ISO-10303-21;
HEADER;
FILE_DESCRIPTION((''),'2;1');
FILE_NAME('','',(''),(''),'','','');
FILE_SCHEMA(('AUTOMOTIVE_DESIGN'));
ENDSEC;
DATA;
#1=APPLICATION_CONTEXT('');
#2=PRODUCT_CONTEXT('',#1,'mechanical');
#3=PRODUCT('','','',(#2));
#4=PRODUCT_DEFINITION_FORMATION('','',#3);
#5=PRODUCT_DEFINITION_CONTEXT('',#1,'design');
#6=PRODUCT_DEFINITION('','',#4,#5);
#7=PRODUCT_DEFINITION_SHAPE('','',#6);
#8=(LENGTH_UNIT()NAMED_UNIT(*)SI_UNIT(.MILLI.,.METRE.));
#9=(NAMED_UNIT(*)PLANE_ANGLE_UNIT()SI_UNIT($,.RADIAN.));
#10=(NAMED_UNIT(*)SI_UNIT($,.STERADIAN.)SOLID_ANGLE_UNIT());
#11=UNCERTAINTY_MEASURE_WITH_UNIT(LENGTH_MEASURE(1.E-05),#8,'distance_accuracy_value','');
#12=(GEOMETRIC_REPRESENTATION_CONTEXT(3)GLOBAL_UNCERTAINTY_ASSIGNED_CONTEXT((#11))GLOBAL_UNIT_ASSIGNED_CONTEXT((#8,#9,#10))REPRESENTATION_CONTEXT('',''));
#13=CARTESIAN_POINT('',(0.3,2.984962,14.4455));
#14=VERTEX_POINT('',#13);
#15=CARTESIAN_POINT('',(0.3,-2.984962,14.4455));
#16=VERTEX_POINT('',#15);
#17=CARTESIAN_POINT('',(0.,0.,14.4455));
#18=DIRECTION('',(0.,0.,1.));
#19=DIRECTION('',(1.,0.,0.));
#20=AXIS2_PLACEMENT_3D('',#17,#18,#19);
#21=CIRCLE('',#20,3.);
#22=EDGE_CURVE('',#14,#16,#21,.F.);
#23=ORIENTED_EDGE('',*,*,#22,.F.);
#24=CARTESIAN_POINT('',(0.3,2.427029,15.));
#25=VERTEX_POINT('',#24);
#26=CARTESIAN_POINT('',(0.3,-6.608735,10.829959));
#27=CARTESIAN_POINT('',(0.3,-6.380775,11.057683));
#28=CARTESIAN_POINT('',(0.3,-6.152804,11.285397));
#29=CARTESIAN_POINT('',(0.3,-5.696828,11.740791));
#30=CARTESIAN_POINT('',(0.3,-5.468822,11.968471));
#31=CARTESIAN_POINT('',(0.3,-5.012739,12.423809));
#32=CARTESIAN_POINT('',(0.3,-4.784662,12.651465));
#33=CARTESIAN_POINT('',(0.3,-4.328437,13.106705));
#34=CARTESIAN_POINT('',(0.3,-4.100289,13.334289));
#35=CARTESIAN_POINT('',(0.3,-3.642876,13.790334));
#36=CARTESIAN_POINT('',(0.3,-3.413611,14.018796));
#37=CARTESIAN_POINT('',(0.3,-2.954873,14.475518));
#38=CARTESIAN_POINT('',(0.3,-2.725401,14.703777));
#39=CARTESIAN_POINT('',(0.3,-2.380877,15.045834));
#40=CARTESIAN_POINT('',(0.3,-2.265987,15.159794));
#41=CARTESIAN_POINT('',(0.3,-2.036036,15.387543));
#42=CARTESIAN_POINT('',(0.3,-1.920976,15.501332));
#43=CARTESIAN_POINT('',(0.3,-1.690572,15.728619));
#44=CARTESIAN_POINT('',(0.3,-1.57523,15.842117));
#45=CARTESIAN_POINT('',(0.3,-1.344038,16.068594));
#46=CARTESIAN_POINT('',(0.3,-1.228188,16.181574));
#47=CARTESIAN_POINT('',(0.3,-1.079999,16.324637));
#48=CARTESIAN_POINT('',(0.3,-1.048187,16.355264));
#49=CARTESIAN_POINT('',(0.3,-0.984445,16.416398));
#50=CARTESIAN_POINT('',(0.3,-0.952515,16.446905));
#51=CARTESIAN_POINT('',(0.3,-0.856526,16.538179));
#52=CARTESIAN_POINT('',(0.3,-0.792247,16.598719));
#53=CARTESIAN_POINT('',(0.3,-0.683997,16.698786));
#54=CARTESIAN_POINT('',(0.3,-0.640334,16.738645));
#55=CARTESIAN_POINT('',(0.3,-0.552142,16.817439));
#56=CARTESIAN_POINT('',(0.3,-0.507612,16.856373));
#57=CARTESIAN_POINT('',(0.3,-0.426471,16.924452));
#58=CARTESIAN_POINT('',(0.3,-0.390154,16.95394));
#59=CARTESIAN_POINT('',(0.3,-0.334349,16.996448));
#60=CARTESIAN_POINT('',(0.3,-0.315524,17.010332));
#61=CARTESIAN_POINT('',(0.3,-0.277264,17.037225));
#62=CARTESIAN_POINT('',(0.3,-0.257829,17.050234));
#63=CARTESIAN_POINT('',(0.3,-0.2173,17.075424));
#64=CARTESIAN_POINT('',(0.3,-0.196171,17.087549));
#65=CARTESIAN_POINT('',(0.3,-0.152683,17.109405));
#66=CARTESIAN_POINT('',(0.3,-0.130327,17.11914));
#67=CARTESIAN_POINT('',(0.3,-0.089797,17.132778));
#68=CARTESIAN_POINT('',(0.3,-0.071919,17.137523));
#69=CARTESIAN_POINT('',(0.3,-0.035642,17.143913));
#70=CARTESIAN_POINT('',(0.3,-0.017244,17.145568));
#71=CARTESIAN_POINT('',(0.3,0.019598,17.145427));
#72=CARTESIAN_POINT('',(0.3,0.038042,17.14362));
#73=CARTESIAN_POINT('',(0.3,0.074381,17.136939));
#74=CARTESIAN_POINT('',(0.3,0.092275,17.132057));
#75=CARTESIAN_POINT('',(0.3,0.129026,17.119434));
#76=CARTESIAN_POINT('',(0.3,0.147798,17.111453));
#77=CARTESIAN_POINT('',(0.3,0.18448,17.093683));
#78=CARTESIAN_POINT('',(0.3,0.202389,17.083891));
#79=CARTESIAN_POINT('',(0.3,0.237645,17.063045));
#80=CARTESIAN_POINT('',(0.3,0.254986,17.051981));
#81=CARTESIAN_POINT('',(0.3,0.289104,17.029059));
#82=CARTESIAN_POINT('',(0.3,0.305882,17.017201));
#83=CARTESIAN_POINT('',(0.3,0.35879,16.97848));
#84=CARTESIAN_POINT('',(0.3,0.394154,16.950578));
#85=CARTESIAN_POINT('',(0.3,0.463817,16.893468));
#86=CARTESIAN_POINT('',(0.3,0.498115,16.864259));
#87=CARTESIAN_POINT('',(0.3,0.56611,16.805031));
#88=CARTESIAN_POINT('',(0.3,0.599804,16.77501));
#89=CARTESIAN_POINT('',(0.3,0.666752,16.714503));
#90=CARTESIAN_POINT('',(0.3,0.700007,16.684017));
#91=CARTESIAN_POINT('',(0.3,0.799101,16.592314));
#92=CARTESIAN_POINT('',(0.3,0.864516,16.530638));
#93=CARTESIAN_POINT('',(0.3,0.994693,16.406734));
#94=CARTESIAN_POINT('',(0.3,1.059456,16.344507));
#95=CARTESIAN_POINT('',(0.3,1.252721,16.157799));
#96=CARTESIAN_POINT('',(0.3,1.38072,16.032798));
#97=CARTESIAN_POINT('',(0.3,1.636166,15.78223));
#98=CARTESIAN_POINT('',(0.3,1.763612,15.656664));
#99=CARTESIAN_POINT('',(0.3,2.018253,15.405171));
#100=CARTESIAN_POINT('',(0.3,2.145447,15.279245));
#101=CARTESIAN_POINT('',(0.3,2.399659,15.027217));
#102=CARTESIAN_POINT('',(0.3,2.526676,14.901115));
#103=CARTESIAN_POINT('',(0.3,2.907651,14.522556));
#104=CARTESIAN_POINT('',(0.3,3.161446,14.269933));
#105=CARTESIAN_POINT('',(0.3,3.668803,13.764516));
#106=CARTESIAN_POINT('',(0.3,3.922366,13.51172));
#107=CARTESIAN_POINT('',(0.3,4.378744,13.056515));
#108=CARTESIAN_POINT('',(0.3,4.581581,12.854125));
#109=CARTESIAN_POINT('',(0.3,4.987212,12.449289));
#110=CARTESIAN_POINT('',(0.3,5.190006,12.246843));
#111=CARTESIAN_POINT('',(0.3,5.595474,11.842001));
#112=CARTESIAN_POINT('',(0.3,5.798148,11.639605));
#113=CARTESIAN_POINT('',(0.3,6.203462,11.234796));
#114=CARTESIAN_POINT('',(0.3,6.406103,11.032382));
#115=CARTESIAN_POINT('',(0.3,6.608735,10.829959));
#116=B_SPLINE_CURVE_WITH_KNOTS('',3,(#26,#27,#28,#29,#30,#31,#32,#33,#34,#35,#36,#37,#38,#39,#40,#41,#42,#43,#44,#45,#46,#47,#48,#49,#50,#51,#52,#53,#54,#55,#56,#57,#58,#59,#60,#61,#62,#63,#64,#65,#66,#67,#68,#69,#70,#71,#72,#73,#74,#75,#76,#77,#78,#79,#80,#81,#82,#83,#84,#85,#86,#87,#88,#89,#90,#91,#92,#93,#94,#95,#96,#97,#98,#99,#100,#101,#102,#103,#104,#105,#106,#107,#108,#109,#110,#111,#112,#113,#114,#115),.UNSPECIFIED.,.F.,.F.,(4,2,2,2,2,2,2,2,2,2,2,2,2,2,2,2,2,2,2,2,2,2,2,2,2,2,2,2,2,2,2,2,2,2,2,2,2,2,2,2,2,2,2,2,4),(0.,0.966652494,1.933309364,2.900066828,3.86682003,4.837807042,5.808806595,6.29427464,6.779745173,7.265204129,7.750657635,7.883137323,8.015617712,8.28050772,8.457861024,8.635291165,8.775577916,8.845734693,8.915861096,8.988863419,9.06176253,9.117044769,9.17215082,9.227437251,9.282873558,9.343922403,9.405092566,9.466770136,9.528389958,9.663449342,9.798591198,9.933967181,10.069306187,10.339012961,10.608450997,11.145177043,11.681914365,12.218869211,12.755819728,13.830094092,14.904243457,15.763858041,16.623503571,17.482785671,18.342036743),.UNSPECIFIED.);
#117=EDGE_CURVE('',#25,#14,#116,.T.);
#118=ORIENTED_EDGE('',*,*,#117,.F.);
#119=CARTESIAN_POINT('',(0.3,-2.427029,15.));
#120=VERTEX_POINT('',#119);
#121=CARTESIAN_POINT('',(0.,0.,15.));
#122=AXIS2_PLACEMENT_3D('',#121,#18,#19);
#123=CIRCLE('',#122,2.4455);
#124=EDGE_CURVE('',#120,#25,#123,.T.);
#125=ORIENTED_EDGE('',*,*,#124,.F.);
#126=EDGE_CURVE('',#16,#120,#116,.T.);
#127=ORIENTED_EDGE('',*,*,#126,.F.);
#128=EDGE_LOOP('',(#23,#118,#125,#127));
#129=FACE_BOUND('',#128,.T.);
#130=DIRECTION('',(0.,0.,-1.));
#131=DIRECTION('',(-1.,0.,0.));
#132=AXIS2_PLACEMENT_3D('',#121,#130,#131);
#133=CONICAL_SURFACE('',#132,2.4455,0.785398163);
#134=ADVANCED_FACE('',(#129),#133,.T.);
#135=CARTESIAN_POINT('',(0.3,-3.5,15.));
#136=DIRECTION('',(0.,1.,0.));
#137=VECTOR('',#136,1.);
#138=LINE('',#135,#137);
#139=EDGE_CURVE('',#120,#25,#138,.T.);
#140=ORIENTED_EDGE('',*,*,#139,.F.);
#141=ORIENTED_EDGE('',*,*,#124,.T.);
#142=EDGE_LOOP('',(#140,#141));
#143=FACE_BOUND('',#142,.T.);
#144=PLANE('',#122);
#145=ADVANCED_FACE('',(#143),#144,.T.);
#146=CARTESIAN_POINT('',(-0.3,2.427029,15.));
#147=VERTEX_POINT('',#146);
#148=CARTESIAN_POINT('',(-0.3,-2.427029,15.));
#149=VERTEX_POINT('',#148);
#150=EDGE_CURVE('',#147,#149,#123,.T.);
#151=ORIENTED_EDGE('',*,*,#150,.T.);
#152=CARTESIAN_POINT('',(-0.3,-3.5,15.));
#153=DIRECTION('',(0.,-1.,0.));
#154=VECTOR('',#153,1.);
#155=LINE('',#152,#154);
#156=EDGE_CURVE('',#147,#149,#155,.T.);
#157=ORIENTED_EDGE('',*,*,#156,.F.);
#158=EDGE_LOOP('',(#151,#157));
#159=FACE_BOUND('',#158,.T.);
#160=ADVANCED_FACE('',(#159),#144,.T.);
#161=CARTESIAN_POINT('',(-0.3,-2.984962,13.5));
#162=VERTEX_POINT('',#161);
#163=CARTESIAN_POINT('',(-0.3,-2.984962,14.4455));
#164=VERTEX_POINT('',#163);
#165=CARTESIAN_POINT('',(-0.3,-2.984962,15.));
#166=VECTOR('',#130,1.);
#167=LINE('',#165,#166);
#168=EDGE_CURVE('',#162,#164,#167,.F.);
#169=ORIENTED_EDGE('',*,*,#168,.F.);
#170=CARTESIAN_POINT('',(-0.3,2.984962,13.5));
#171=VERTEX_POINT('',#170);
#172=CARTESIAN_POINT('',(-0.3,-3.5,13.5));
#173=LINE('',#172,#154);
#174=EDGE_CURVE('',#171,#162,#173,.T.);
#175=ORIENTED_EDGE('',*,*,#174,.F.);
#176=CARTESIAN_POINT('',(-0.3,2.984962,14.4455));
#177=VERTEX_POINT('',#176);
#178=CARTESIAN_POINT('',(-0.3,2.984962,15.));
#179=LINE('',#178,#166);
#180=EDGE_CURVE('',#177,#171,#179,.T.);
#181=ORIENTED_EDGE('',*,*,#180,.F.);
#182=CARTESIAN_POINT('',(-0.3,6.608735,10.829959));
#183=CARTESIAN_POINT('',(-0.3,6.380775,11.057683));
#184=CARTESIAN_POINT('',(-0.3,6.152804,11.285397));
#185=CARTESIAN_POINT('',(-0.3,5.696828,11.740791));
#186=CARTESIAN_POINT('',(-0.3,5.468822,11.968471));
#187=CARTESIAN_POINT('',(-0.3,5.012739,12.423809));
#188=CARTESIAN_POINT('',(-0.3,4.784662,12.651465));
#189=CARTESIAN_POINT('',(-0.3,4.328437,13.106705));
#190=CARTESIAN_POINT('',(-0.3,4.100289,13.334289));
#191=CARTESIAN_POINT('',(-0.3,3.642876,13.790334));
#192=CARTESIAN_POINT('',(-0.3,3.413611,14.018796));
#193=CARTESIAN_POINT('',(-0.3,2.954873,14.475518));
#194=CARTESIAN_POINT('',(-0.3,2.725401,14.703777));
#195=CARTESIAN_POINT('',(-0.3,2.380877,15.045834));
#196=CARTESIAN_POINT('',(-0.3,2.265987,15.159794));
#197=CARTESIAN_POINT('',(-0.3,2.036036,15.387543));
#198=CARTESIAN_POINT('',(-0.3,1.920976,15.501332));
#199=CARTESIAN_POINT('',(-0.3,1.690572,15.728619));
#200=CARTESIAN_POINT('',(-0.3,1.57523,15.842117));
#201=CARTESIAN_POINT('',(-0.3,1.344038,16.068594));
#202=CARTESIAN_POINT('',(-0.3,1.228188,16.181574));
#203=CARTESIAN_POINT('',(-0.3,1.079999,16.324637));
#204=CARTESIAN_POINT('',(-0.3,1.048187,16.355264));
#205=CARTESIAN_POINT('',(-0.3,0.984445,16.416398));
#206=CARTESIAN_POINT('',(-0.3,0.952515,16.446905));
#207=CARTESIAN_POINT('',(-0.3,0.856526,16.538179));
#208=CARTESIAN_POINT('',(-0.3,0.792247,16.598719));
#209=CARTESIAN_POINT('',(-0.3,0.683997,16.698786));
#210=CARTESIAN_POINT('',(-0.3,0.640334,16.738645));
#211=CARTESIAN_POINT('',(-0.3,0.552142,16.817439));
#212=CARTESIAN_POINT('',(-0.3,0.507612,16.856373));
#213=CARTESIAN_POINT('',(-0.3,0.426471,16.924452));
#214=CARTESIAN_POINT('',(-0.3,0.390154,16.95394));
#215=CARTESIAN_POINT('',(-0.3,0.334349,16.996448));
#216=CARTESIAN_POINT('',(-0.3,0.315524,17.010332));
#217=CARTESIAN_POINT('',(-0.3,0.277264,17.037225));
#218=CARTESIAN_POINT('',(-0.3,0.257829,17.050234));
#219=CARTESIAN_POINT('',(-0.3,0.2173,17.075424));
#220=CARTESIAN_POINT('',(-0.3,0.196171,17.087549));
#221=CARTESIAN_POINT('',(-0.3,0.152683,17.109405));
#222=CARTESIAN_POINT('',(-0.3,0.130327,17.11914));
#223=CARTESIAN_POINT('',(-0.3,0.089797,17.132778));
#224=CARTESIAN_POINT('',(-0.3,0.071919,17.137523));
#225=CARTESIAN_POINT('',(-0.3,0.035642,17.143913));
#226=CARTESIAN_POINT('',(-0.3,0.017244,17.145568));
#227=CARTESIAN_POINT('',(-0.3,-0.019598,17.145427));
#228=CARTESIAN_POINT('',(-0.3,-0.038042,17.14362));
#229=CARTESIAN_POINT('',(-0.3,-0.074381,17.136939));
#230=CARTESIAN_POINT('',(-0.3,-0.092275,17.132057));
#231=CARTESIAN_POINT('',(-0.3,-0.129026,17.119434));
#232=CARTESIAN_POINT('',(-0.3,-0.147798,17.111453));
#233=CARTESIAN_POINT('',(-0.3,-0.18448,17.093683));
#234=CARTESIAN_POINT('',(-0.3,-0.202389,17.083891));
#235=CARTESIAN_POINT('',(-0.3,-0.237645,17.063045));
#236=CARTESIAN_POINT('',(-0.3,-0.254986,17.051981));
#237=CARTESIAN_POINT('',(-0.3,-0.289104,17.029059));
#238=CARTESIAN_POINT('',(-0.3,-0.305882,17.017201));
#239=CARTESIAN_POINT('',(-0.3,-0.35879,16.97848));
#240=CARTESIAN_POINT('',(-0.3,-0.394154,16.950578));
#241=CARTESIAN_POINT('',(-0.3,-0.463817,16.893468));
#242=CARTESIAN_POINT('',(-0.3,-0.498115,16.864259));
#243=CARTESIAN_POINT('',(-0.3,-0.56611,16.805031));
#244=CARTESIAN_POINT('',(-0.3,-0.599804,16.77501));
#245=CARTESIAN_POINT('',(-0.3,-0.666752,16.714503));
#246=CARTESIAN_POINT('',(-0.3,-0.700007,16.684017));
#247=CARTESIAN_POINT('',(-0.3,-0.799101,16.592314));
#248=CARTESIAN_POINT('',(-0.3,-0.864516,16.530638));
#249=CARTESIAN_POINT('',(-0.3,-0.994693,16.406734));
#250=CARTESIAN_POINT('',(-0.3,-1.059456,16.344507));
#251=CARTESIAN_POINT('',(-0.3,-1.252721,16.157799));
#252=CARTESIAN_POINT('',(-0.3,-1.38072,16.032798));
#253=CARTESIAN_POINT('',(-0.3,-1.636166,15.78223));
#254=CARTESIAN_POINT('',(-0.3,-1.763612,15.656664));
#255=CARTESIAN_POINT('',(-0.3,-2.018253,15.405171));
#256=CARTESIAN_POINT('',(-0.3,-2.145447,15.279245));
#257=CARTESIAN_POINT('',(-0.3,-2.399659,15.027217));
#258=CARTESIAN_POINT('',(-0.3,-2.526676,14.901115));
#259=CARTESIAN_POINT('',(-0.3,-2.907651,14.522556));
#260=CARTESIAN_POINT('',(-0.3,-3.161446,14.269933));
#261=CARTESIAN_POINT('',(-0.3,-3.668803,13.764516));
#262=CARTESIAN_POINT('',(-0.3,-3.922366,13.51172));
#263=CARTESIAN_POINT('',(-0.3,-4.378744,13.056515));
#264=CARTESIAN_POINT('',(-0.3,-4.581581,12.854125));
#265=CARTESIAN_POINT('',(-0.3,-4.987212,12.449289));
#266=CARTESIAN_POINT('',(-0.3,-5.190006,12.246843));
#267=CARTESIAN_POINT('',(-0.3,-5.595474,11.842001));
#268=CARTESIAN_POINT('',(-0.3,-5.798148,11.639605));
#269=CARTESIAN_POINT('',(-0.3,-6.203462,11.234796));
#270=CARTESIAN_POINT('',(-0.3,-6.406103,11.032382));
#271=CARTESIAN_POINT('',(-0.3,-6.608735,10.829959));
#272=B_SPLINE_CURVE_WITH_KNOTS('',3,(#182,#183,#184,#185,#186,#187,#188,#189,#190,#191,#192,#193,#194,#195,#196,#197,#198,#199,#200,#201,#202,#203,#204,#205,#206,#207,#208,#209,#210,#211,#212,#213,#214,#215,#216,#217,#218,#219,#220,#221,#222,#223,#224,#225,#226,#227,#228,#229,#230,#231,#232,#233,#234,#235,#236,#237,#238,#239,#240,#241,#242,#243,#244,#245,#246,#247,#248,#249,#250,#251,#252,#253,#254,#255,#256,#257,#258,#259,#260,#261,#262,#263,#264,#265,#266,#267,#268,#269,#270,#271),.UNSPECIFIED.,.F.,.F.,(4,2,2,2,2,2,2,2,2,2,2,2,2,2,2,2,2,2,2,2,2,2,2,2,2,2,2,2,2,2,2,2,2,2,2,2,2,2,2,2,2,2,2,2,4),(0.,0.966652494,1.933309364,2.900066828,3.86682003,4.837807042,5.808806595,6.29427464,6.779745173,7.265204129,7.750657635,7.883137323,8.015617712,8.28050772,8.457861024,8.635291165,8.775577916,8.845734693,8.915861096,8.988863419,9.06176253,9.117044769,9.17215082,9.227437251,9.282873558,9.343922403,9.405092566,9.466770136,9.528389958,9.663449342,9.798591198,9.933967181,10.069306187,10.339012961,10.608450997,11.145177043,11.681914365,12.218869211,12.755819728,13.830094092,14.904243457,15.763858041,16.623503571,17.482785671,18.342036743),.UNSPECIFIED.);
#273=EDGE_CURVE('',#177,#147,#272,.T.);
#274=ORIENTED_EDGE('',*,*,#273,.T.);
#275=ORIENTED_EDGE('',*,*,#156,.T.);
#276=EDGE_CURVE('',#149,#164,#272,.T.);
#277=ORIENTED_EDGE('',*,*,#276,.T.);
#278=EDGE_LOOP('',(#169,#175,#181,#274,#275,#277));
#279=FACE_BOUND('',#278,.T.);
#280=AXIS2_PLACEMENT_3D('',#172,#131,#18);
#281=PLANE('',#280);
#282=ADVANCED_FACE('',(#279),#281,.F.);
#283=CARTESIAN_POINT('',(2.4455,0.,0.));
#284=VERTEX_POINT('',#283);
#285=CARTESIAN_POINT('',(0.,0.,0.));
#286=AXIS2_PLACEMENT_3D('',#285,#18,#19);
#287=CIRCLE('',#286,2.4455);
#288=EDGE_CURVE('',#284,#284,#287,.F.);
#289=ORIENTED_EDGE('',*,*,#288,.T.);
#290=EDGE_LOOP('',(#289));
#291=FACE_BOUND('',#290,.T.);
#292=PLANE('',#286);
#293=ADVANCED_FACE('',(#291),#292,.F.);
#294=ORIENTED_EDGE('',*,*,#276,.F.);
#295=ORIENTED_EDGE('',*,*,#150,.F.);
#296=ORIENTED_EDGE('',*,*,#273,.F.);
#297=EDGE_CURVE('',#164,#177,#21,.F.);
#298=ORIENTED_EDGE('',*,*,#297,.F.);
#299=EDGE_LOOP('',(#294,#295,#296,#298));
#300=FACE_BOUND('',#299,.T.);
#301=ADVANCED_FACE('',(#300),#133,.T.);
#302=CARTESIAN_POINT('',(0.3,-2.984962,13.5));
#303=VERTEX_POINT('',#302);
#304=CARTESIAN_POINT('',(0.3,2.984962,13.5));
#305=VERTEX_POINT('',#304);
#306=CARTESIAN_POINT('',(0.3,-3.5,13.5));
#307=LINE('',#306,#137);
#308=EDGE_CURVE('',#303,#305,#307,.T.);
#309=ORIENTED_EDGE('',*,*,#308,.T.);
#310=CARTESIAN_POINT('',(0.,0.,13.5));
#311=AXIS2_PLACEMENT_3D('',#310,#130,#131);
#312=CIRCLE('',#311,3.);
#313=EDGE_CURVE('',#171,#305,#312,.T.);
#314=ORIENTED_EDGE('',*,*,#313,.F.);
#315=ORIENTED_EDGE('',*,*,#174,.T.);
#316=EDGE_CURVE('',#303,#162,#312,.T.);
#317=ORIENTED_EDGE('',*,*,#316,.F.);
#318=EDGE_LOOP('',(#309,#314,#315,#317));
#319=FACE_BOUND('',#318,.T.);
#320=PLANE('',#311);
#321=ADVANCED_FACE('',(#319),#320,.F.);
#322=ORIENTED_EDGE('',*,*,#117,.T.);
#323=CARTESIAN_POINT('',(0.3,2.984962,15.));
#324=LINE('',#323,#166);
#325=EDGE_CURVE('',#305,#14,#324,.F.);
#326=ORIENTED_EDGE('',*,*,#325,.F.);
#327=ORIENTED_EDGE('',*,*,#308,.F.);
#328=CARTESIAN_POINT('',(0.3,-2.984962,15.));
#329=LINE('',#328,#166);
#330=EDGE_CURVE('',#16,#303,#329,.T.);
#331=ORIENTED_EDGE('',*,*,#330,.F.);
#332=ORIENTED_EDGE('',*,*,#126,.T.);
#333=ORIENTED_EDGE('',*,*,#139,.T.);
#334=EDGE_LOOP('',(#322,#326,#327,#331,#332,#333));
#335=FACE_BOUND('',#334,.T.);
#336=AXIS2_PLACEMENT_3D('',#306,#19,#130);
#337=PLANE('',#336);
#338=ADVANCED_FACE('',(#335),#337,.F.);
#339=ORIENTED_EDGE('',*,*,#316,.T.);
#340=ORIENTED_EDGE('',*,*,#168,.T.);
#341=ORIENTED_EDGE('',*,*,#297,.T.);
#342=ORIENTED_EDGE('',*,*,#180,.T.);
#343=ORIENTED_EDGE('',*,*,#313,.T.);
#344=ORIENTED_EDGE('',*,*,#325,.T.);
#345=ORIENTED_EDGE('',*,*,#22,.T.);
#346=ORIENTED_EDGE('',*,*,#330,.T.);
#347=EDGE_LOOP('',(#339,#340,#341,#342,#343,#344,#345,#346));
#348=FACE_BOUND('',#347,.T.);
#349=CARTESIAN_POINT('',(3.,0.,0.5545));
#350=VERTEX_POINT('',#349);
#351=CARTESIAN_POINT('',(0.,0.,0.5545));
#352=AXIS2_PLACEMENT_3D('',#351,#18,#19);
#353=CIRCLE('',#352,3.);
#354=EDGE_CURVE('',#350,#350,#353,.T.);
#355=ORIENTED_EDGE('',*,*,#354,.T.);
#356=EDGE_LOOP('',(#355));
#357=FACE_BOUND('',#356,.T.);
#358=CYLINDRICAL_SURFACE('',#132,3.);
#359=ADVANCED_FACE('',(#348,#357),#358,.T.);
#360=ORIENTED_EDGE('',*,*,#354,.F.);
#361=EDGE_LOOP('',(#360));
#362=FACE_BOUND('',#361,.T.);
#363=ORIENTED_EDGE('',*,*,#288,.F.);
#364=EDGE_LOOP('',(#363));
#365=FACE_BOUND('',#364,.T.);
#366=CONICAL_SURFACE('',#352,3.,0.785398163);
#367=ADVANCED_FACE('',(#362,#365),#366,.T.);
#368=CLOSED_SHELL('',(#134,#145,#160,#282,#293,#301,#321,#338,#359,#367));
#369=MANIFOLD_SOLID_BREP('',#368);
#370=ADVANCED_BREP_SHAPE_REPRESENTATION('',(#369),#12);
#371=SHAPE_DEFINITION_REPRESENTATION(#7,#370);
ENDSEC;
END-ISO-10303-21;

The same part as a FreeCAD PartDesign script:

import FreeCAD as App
import Part
import Sketcher

V = App.Vector


def edges_at(feature, points):
    """Names of the edges that pass closest to the given points."""
    edges = feature.Shape.Edges
    near = lambda p: min(range(len(edges)), key=lambda i: edges[i].distToShape(Part.Vertex(*p))[0])
    return sorted({f"Edge{near(p) + 1}" for p in points})

doc = App.newDocument("Part")
params = doc.addObject("Spreadsheet::Sheet", "Params")
for row, (alias, value) in enumerate([
    ("sketch1_diameter", "6 mm"),
    ("pad1_length", "15 mm"),
    ("chamfer_size", "0.5545 mm"),
    ("sketch2_height", "7 mm"),
    ("sketch2_width", "0.6 mm"),
    ("pocket1_length", "1.5 mm"),
], start=1):
    params.set(f"A{row}", alias)
    params.set(f"B{row}", "=" + value)
    params.setAlias(f"B{row}", alias)

body = doc.addObject("PartDesign::Body", "Body")

sketch1 = body.newObject("Sketcher::SketchObject", "Sketch")
sketch1.AttachmentSupport = (doc.getObject("XY_Plane"), [""])
sketch1.MapMode = "FlatFace"
sketch1.addGeometry(Part.Circle(V(0, 0, 0), V(0, 0, 1), 3), False)
sketch1.addConstraint([
    Sketcher.Constraint("Coincident", 0, 3, -1, 1),
    Sketcher.Constraint("Diameter", 0, 6.0),
])
sketch1.setExpression("Constraints[1]", "Params.sketch1_diameter")
pad1 = body.newObject("PartDesign::Pad", "Pad")
pad1.Profile = sketch1
pad1.setExpression("Length", "Params.pad1_length")
doc.recompute()

chamfer = body.newObject("PartDesign::Chamfer", "Chamfer")
chamfer.Base = (pad1, edges_at(pad1, [(-3, 0, 0), (-3, 0, 15)]))
chamfer.setExpression("Size", "Params.chamfer_size")

sketch2 = body.newObject("Sketcher::SketchObject", "Sketch001")
sketch2.AttachmentSupport = (doc.getObject("XY_Plane"), [""])
sketch2.MapMode = "FlatFace"
sketch2.AttachmentOffset = App.Placement(V(0, 0, 15), App.Rotation())
sketch2.addGeometry([
    Part.LineSegment(V(-0.3, 3.5, 0), V(-0.3, -3.5, 0)),
    Part.LineSegment(V(-0.3, -3.5, 0), V(0.3, -3.5, 0)),
    Part.LineSegment(V(0.3, -3.5, 0), V(0.3, 3.5, 0)),
    Part.LineSegment(V(0.3, 3.5, 0), V(-0.3, 3.5, 0)),
], False)
sketch2.addConstraint([
    Sketcher.Constraint("Coincident", 0, 2, 1, 1),
    Sketcher.Constraint("Coincident", 1, 2, 2, 1),
    Sketcher.Constraint("Coincident", 2, 2, 3, 1),
    Sketcher.Constraint("Coincident", 3, 2, 0, 1),
    Sketcher.Constraint("Vertical", 0),
    Sketcher.Constraint("Horizontal", 1),
    Sketcher.Constraint("Vertical", 2),
    Sketcher.Constraint("Horizontal", 3),
    Sketcher.Constraint("Symmetric", 0, 2, 2, 2, -1, 1),
    Sketcher.Constraint("DistanceY", 0, 2, 0, 1, 7.0),
    Sketcher.Constraint("DistanceX", 1, 1, 1, 2, 0.6),
])
sketch2.setExpression("Constraints[9]", "Params.sketch2_height")
sketch2.setExpression("Constraints[10]", "Params.sketch2_width")
pocket1 = body.newObject("PartDesign::Pocket", "Pocket")
pocket1.Profile = sketch2
pocket1.setExpression("Length", "Params.pocket1_length")

doc.recompute()
